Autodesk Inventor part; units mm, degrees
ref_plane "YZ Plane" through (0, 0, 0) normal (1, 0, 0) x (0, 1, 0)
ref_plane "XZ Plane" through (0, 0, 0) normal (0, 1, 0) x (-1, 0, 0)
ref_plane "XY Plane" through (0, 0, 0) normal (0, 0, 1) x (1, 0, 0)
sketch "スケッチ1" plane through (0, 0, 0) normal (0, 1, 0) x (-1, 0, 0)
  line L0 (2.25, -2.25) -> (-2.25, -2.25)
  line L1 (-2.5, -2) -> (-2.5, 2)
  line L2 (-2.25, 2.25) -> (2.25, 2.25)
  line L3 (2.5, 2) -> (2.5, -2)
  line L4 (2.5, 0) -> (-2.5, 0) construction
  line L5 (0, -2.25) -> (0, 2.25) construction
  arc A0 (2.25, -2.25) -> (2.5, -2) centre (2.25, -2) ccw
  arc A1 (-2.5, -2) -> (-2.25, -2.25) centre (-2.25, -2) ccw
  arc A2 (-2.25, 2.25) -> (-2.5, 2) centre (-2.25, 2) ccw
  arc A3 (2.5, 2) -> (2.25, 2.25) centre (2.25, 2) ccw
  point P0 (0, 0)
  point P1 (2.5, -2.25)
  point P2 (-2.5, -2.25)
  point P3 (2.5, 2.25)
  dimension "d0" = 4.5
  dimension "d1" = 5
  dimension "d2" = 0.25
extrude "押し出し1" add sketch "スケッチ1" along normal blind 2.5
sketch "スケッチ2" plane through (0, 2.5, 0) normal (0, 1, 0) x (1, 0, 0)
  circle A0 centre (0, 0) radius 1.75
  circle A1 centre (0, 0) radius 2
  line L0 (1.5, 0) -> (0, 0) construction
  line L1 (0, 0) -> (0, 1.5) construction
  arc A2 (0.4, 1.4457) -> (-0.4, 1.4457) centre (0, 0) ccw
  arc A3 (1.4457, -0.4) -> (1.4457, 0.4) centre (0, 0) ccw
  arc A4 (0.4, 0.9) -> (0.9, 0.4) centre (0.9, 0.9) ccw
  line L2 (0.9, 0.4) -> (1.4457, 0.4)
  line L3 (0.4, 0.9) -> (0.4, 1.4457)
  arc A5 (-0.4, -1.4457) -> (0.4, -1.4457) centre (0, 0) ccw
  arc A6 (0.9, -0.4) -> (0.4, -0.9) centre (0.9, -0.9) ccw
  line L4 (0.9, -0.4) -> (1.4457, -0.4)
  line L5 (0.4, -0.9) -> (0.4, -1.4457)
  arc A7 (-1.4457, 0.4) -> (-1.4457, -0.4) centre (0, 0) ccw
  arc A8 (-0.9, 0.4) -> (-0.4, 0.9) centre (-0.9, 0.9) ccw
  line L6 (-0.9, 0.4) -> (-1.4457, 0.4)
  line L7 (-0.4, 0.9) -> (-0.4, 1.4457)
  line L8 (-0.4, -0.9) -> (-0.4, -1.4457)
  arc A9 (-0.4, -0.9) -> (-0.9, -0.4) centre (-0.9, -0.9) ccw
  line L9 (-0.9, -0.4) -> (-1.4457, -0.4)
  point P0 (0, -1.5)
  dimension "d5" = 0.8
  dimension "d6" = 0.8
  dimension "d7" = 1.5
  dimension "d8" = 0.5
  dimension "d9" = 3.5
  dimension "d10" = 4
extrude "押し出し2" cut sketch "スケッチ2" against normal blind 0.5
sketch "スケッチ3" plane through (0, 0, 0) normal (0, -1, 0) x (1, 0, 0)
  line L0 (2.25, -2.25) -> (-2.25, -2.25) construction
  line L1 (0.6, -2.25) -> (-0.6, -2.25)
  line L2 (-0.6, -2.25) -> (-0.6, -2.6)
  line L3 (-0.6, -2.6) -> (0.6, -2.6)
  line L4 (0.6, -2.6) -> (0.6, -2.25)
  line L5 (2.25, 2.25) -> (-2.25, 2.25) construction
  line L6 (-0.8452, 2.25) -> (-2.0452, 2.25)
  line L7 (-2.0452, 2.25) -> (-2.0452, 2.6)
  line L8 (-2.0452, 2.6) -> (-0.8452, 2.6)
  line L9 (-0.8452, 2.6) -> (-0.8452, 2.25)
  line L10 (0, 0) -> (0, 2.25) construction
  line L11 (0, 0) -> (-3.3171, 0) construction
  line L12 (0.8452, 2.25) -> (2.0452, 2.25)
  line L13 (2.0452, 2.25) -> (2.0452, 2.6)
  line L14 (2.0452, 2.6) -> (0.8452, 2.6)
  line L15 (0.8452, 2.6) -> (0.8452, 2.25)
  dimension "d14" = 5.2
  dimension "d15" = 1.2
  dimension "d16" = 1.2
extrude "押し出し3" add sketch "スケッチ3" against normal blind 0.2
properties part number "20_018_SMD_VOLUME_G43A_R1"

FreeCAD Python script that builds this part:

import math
import FreeCAD as App
import Part
import Sketcher
Q = App.Units.Quantity

doc = App.newDocument("Part")
body = doc.addObject("PartDesign::Body", "Body")

# Sketch on XZ plane
sketch1 = body.newObject("Sketcher::SketchObject", "Sketch")
sketch1.AttachmentSupport = (doc.getObject("XZ_Plane"), [""])
sketch1.MapMode = "FlatFace"
sketch1.addGeometry(Part.LineSegment(App.Vector(2.25, -2.25, 0), App.Vector(-2.25, -2.25, 0)), False)
sketch1.addGeometry(Part.ArcOfCircle(Part.Circle(App.Vector(-2.25, -2, 0), App.Vector(0, 0, 1), 0.25), math.radians(180), math.radians(270)), False)
sketch1.addGeometry(Part.LineSegment(App.Vector(-2.5, -2, 0), App.Vector(-2.5, 2, 0)), False)
sketch1.addGeometry(Part.ArcOfCircle(Part.Circle(App.Vector(-2.25, 2, 0), App.Vector(0, 0, 1), 0.25), math.radians(90), math.radians(180)), False)
sketch1.addGeometry(Part.LineSegment(App.Vector(-2.25, 2.25, 0), App.Vector(2.25, 2.25, 0)), False)
sketch1.addGeometry(Part.ArcOfCircle(Part.Circle(App.Vector(2.25, 2, 0), App.Vector(0, 0, 1), 0.25), math.radians(0), math.radians(90)), False)
sketch1.addGeometry(Part.LineSegment(App.Vector(2.5, 2, 0), App.Vector(2.5, -2, 0)), False)
sketch1.addGeometry(Part.ArcOfCircle(Part.Circle(App.Vector(2.25, -2, 0), App.Vector(0, 0, 1), 0.25), math.radians(-90), math.radians(0)), False)
sketch1.addConstraint(Sketcher.Constraint("Tangent", 0, 2, 1, 2))
sketch1.addConstraint(Sketcher.Constraint("Tangent", 1, 1, 2, 1))
sketch1.addConstraint(Sketcher.Constraint("Tangent", 2, 2, 3, 2))
sketch1.addConstraint(Sketcher.Constraint("Tangent", 3, 1, 4, 1))
sketch1.addConstraint(Sketcher.Constraint("Tangent", 4, 2, 5, 2))
sketch1.addConstraint(Sketcher.Constraint("Tangent", 5, 1, 6, 1))
sketch1.addConstraint(Sketcher.Constraint("Tangent", 6, 2, 7, 2))
sketch1.addConstraint(Sketcher.Constraint("Tangent", 7, 1, 0, 1))
sketch1.addConstraint(Sketcher.Constraint("Horizontal", 0))
sketch1.addConstraint(Sketcher.Constraint("Vertical", 2))
sketch1.addConstraint(Sketcher.Constraint("Horizontal", 4))
sketch1.addConstraint(Sketcher.Constraint("Vertical", 6))
sketch1.addConstraint(Sketcher.Constraint("Equal", 1, 3))
sketch1.addConstraint(Sketcher.Constraint("Equal", 3, 5))
sketch1.addConstraint(Sketcher.Constraint("Equal", 5, 7))
sketch1.addConstraint(Sketcher.Constraint("Symmetric", 1, 3, 5, 3, -1, 1))
sketch1.addConstraint(Sketcher.Constraint("Radius", 1, Q("0.25 mm")))
sketch1.addConstraint(Sketcher.Constraint("DistanceX", 0, 2, 0, 1, Q("4.5 mm")))
sketch1.addConstraint(Sketcher.Constraint("DistanceY", 0, 2, 3, 1, Q("4.5 mm")))
pad1 = body.newObject("PartDesign::Pad", "Pad")
pad1.Profile = sketch1
pad1.Length = 2.5
pad1.Reversed = True

# Sketch on XZ plane
sketch2 = body.newObject("Sketcher::SketchObject", "Sketch001")
sketch2.AttachmentSupport = (doc.getObject("XZ_Plane"), [""])
sketch2.MapMode = "FlatFace"
sketch2.AttachmentOffset = App.Placement(App.Vector(0, 0, -2.5), App.Rotation())
sketch2.addGeometry(Part.Circle(App.Vector(0, 0, 0), App.Vector(0, 0, 1), 2), False)
sketch2.addGeometry(Part.Circle(App.Vector(0, 0, 0), App.Vector(0, 0, 1), 1.8), False)
sketch2.addGeometry(Part.LineSegment(App.Vector(0.4, -0.9, 0), App.Vector(0.4, -1.4, 0)), False)
sketch2.addGeometry(Part.ArcOfCircle(Part.Circle(App.Vector(0, 0, 0), App.Vector(0, 0, 1), 1.5), math.radians(-105), math.radians(-75)), False)
sketch2.addGeometry(Part.LineSegment(App.Vector(-0.4, -1.4, 0), App.Vector(-0.4, -0.9, 0)), False)
sketch2.addGeometry(Part.ArcOfCircle(Part.Circle(App.Vector(-0.9, -0.9, 0), App.Vector(0, 0, 1), 0.5), math.radians(0), math.radians(90)), False)
sketch2.addGeometry(Part.LineSegment(App.Vector(-0.9, -0.4, 0), App.Vector(-1.4, -0.4, 0)), False)
sketch2.addGeometry(Part.ArcOfCircle(Part.Circle(App.Vector(0, 0, 0), App.Vector(0, 0, 1), 1.5), math.radians(165), math.radians(195)), False)
sketch2.addGeometry(Part.LineSegment(App.Vector(-1.4, 0.4, 0), App.Vector(-0.9, 0.4, 0)), False)
sketch2.addGeometry(Part.ArcOfCircle(Part.Circle(App.Vector(-0.9, 0.9, 0), App.Vector(0, 0, 1), 0.5), math.radians(-90), math.radians(0)), False)
sketch2.addGeometry(Part.LineSegment(App.Vector(-0.4, 0.9, 0), App.Vector(-0.4, 1.4, 0)), False)
sketch2.addGeometry(Part.ArcOfCircle(Part.Circle(App.Vector(0, 0, 0), App.Vector(0, 0, 1), 1.5), math.radians(75), math.radians(105)), False)
sketch2.addGeometry(Part.LineSegment(App.Vector(0.4, 1.4, 0), App.Vector(0.4, 0.9, 0)), False)
sketch2.addGeometry(Part.ArcOfCircle(Part.Circle(App.Vector(0.9, 0.9, 0), App.Vector(0, 0, 1), 0.5), math.radians(180), math.radians(270)), False)
sketch2.addGeometry(Part.LineSegment(App.Vector(0.9, 0.4, 0), App.Vector(1.4, 0.4, 0)), False)
sketch2.addGeometry(Part.ArcOfCircle(Part.Circle(App.Vector(0, 0, 0), App.Vector(0, 0, 1), 1.5), math.radians(-15), math.radians(15)), False)
sketch2.addGeometry(Part.LineSegment(App.Vector(1.4, -0.4, 0), App.Vector(0.9, -0.4, 0)), False)
sketch2.addGeometry(Part.ArcOfCircle(Part.Circle(App.Vector(0.9, -0.9, 0), App.Vector(0, 0, 1), 0.5), math.radians(90), math.radians(180)), False)
sketch2.addConstraint(Sketcher.Constraint("Coincident", 2, 2, 3, 2))
sketch2.addConstraint(Sketcher.Constraint("Coincident", 3, 1, 4, 1))
sketch2.addConstraint(Sketcher.Constraint("Tangent", 4, 2, 5, 1))
sketch2.addConstraint(Sketcher.Constraint("Tangent", 5, 2, 6, 1))
sketch2.addConstraint(Sketcher.Constraint("Coincident", 6, 2, 7, 2))
sketch2.addConstraint(Sketcher.Constraint("Coincident", 7, 1, 8, 1))
sketch2.addConstraint(Sketcher.Constraint("Tangent", 8, 2, 9, 1))
sketch2.addConstraint(Sketcher.Constraint("Tangent", 9, 2, 10, 1))
sketch2.addConstraint(Sketcher.Constraint("Coincident", 10, 2, 11, 2))
sketch2.addConstraint(Sketcher.Constraint("Coincident", 11, 1, 12, 1))
sketch2.addConstraint(Sketcher.Constraint("Tangent", 12, 2, 13, 1))
sketch2.addConstraint(Sketcher.Constraint("Tangent", 13, 2, 14, 1))
sketch2.addConstraint(Sketcher.Constraint("Coincident", 14, 2, 15, 2))
sketch2.addConstraint(Sketcher.Constraint("Coincident", 15, 1, 16, 1))
sketch2.addConstraint(Sketcher.Constraint("Tangent", 16, 2, 17, 1))
sketch2.addConstraint(Sketcher.Constraint("Tangent", 17, 2, 2, 1))
sketch2.addConstraint(Sketcher.Constraint("Vertical", 2))
sketch2.addConstraint(Sketcher.Constraint("Vertical", 4))
sketch2.addConstraint(Sketcher.Constraint("Horizontal", 6))
sketch2.addConstraint(Sketcher.Constraint("Horizontal", 8))
sketch2.addConstraint(Sketcher.Constraint("Vertical", 10))
sketch2.addConstraint(Sketcher.Constraint("Vertical", 12))
sketch2.addConstraint(Sketcher.Constraint("Horizontal", 14))
sketch2.addConstraint(Sketcher.Constraint("Horizontal", 16))
sketch2.addConstraint(Sketcher.Constraint("Coincident", 0, 3, -1, 1))
sketch2.addConstraint(Sketcher.Constraint("Coincident", 1, 3, -1, 1))
sketch2.addConstraint(Sketcher.Constraint("Coincident", 3, 3, -1, 1))
sketch2.addConstraint(Sketcher.Constraint("Coincident", 7, 3, -1, 1))
sketch2.addConstraint(Sketcher.Constraint("Coincident", 11, 3, -1, 1))
sketch2.addConstraint(Sketcher.Constraint("Coincident", 15, 3, -1, 1))
sketch2.addConstraint(Sketcher.Constraint("Equal", 3, 7))
sketch2.addConstraint(Sketcher.Constraint("Equal", 5, 9))
sketch2.addConstraint(Sketcher.Constraint("Equal", 7, 11))
sketch2.addConstraint(Sketcher.Constraint("Equal", 9, 13))
sketch2.addConstraint(Sketcher.Constraint("Equal", 11, 15))
sketch2.addConstraint(Sketcher.Constraint("Equal", 13, 17))
sketch2.addConstraint(Sketcher.Constraint("Symmetric", 5, 3, 13, 3, -1, 1))
sketch2.addConstraint(Sketcher.Constraint("Symmetric", 9, 3, 17, 3, -1, 1))
sketch2.addConstraint(Sketcher.Constraint("Symmetric", 9, 3, 13, 3, -2))
sketch2.addConstraint(Sketcher.Constraint("Equal", 16, 2))
sketch2.addConstraint(Sketcher.Constraint("Diameter", 0, Q("4 mm")))
sketch2.addConstraint(Sketcher.Constraint("Diameter", 1, Q("3.5 mm")))
sketch2.addConstraint(Sketcher.Constraint("Radius", 3, Q("1.5 mm")))
sketch2.addConstraint(Sketcher.Constraint("Radius", 5, Q("0.5 mm")))
sketch2.addConstraint(Sketcher.Constraint("DistanceX", 3, 1, 2, 2, Q("0.8 mm")))
pocket1 = body.newObject("PartDesign::Pocket", "Pocket")
pocket1.Profile = sketch2
pocket1.Length = 0.5
pocket1.Reversed = True

# Sketch on XZ plane
sketch3 = body.newObject("Sketcher::SketchObject", "Sketch002")
sketch3.AttachmentSupport = (doc.getObject("XZ_Plane"), [""])
sketch3.MapMode = "FlatFace"
sketch3.addGeometry(Part.LineSegment(App.Vector(0.6, -2.6, 0), App.Vector(0.6, -2.25, 0)), False)
sketch3.addGeometry(Part.LineSegment(App.Vector(0.6, -2.25, 0), App.Vector(-0.6, -2.25, 0)), False)
sketch3.addGeometry(Part.LineSegment(App.Vector(-0.6, -2.25, 0), App.Vector(-0.6, -2.6, 0)), False)
sketch3.addGeometry(Part.LineSegment(App.Vector(-0.6, -2.6, 0), App.Vector(0.6, -2.6, 0)), False)
sketch3.addGeometry(Part.LineSegment(App.Vector(-2.05, 2.25, 0), App.Vector(-0.85, 2.25, 0)), False)
sketch3.addGeometry(Part.LineSegment(App.Vector(-0.85, 2.25, 0), App.Vector(-0.85, 2.6, 0)), False)
sketch3.addGeometry(Part.LineSegment(App.Vector(-0.85, 2.6, 0), App.Vector(-2.05, 2.6, 0)), False)
sketch3.addGeometry(Part.LineSegment(App.Vector(-2.05, 2.6, 0), App.Vector(-2.05, 2.25, 0)), False)
sketch3.addGeometry(Part.LineSegment(App.Vector(0.85, 2.6, 0), App.Vector(0.85, 2.25, 0)), False)
sketch3.addGeometry(Part.LineSegment(App.Vector(0.85, 2.25, 0), App.Vector(2.05, 2.25, 0)), False)
sketch3.addGeometry(Part.LineSegment(App.Vector(2.05, 2.25, 0), App.Vector(2.05, 2.6, 0)), False)
sketch3.addGeometry(Part.LineSegment(App.Vector(2.05, 2.6, 0), App.Vector(0.85, 2.6, 0)), False)
sketch3.addConstraint(Sketcher.Constraint("Coincident", 0, 2, 1, 1))
sketch3.addConstraint(Sketcher.Constraint("Coincident", 1, 2, 2, 1))
sketch3.addConstraint(Sketcher.Constraint("Coincident", 2, 2, 3, 1))
sketch3.addConstraint(Sketcher.Constraint("Coincident", 3, 2, 0, 1))
sketch3.addConstraint(Sketcher.Constraint("Coincident", 4, 2, 5, 1))
sketch3.addConstraint(Sketcher.Constraint("Coincident", 5, 2, 6, 1))
sketch3.addConstraint(Sketcher.Constraint("Coincident", 6, 2, 7, 1))
sketch3.addConstraint(Sketcher.Constraint("Coincident", 7, 2, 4, 1))
sketch3.addConstraint(Sketcher.Constraint("Coincident", 8, 2, 9, 1))
sketch3.addConstraint(Sketcher.Constraint("Coincident", 9, 2, 10, 1))
sketch3.addConstraint(Sketcher.Constraint("Coincident", 10, 2, 11, 1))
sketch3.addConstraint(Sketcher.Constraint("Coincident", 11, 2, 8, 1))
sketch3.addConstraint(Sketcher.Constraint("Vertical", 0))
sketch3.addConstraint(Sketcher.Constraint("Horizontal", 1))
sketch3.addConstraint(Sketcher.Constraint("Vertical", 2))
sketch3.addConstraint(Sketcher.Constraint("Horizontal", 3))
sketch3.addConstraint(Sketcher.Constraint("Horizontal", 4))
sketch3.addConstraint(Sketcher.Constraint("Vertical", 5))
sketch3.addConstraint(Sketcher.Constraint("Horizontal", 6))
sketch3.addConstraint(Sketcher.Constraint("Vertical", 7))
sketch3.addConstraint(Sketcher.Constraint("Vertical", 8))
sketch3.addConstraint(Sketcher.Constraint("Horizontal", 9))
sketch3.addConstraint(Sketcher.Constraint("Vertical", 10))
sketch3.addConstraint(Sketcher.Constraint("Horizontal", 11))
sketch3.addConstraint(Sketcher.Constraint("Symmetric", 4, 2, 8, 2, -2))
sketch3.addConstraint(Sketcher.Constraint("Symmetric", 6, 2, 10, 2, -2))
sketch3.addConstraint(Sketcher.Constraint("Equal", 3, 4))
sketch3.addConstraint(Sketcher.Constraint("Equal", 2, 5))
sketch3.addConstraint(Sketcher.Constraint("DistanceX", 1, 2, 1, 1, Q("1.2 mm")))
sketch3.addConstraint(Sketcher.Constraint("DistanceY", 2, 2, 5, 2, Q("5.2 mm")))
sketch3.addConstraint(Sketcher.Constraint("DistanceY", 0, 1, 0, 2, Q("0.35 mm")))
sketch3.addConstraint(Sketcher.Constraint("DistanceX", -1, 1, 0, 2, Q("0.6 mm")))
sketch3.addConstraint(Sketcher.Constraint("DistanceY", 2, 2, -1, 1, Q("2.6 mm")))
sketch3.addConstraint(Sketcher.Constraint("DistanceX", 4, 2, -1, 1, Q("0.8452 mm")))
pad2 = body.newObject("PartDesign::Pad", "Pad001")
pad2.Profile = sketch3
pad2.Length = 0.2
pad2.Reversed = True

doc.recompute()
